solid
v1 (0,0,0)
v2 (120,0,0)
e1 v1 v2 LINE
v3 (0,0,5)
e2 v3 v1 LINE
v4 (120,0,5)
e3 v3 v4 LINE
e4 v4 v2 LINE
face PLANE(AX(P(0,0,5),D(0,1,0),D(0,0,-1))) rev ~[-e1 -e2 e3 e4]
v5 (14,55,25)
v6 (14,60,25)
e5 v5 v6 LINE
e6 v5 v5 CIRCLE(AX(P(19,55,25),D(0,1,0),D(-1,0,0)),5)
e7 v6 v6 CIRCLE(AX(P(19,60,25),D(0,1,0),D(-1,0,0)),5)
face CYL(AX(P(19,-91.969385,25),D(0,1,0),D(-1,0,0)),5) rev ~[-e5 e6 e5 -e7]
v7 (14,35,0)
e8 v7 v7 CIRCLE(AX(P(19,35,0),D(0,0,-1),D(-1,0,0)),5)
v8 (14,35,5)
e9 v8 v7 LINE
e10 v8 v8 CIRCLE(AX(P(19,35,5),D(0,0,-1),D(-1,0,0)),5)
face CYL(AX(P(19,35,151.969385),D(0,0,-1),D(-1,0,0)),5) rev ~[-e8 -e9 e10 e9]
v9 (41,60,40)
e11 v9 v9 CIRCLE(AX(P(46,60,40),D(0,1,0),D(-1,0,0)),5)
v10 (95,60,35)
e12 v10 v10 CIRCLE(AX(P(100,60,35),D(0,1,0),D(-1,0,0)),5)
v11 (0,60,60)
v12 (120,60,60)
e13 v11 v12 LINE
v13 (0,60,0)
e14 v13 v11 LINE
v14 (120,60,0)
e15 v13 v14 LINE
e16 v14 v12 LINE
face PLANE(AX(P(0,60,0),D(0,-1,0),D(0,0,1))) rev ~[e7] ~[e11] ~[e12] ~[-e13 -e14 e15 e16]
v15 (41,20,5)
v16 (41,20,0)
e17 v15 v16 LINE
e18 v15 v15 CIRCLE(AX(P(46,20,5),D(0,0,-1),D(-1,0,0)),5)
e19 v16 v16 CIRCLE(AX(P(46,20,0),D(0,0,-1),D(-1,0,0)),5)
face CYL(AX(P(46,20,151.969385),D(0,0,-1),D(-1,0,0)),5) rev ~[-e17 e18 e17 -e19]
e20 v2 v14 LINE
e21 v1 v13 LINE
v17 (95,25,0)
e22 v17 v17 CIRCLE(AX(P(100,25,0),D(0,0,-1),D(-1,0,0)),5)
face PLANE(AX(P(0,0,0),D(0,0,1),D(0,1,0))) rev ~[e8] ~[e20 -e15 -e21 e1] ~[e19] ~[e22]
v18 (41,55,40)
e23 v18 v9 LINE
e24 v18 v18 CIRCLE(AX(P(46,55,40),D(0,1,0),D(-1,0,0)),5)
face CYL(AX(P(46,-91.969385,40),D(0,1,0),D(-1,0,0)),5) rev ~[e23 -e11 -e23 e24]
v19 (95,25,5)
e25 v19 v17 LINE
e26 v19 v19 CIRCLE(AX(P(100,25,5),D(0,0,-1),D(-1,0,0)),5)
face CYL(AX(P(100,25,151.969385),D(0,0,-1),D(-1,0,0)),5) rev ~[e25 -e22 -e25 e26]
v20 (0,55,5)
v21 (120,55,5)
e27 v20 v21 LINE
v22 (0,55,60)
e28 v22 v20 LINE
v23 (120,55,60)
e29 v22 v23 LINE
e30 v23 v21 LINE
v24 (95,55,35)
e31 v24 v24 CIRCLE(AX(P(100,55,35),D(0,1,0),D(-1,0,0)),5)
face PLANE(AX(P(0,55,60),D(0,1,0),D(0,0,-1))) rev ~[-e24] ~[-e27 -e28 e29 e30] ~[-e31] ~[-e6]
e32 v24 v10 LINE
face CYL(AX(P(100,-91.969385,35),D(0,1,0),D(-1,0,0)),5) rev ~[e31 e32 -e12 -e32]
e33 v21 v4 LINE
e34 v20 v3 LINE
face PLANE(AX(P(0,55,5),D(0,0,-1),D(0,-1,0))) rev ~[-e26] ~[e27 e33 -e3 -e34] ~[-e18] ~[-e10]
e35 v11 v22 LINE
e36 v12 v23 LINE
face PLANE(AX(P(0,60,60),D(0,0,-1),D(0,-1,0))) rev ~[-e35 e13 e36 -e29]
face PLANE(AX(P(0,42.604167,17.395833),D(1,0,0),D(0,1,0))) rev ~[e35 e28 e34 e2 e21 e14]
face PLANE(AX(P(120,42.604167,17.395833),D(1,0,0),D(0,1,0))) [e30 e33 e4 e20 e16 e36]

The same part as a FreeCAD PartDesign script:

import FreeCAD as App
import Part
import Sketcher
Q = App.Units.Quantity


def add_polygon(sketch, points):
    """Adds a closed chain of lines whose ends are joined by coincident constraints."""
    first, n = sketch.GeometryCount, len(points)
    for a, b in zip(points, points[1:] + points[:1]):
        sketch.addGeometry(Part.LineSegment(App.Vector(*a, 0), App.Vector(*b, 0)), False)
    for i in range(n):
        sketch.addConstraint(Sketcher.Constraint("Coincident", first + i, 2, first + (i + 1) % n, 1))

doc = App.newDocument("Part")
params = doc.addObject("Spreadsheet::Sheet", "Params")
for row, (alias, value) in enumerate([
    ("sketch1_width", "60 mm"),
    ("sketch1_width2", "5 mm"),
    ("pad1_length", "120 mm"),
    ("sketch2_diameter", "10 mm"),
    ("hole_diameter", "10 mm"),
    ("sketch3_diameter", "10 mm"),
    ("hole2_diameter", "10 mm"),
    ("sketch4_diameter", "10 mm"),
    ("hole3_diameter", "10 mm"),
    ("sketch5_diameter", "10 mm"),
    ("hole4_diameter", "10 mm"),
], start=1):
    params.set(f"A{row}", alias)
    params.set(f"B{row}", "=" + value)
    params.setAlias(f"B{row}", alias)

body = doc.addObject("PartDesign::Body", "Body")

# Sketch on YZ plane
sketch1 = doc.addObject("Sketcher::SketchObject", "Sketch")
body.addObject(sketch1)
sketch1.AttachmentSupport = (doc.YZ_Plane, [""])
sketch1.MapMode = "FlatFace"
add_polygon(sketch1, [(0, 5), (0, 0), (60, 0), (60, 60), (55, 60), (55, 5)])  # lines 0-5
sketch1.addConstraint(Sketcher.Constraint("Vertical", 0))
sketch1.addConstraint(Sketcher.Constraint("Horizontal", 1))
sketch1.addConstraint(Sketcher.Constraint("Vertical", 2))
sketch1.addConstraint(Sketcher.Constraint("Horizontal", 3))
sketch1.addConstraint(Sketcher.Constraint("Vertical", 4))
sketch1.addConstraint(Sketcher.Constraint("Horizontal", 5))
sketch1.addConstraint(Sketcher.Constraint("Coincident", 0, 2, -1, 1))
sketch1.addConstraint(Sketcher.Constraint("Equal", 3, 0))
sketch1.addConstraint(Sketcher.Constraint("Equal", 1, 2))
sketch1.addConstraint(Sketcher.Constraint("DistanceX", 1, 1, 1, 2, Q("60 mm")))
sketch1.addConstraint(Sketcher.Constraint("DistanceX", 3, 2, 3, 1, Q("5 mm")))
sketch1.setExpression("Constraints[15]", "Params.sketch1_width")
sketch1.setExpression("Constraints[16]", "Params.sketch1_width2")
pad1 = doc.addObject("PartDesign::Pad", "Pad")
body.addObject(pad1)
pad1.Profile = sketch1
pad1.setExpression("Length", "Params.pad1_length")

# Sketch on XY plane
sketch2 = doc.addObject("Sketcher::SketchObject", "Sketch001")
body.addObject(sketch2)
sketch2.AttachmentSupport = (doc.XY_Plane, [""])
sketch2.MapMode = "FlatFace"
sketch2.AttachmentOffset = App.Placement(App.Vector(0, 0, 5), App.Rotation())
sketch2.addGeometry(Part.Circle(App.Vector(46, 20, 0), App.Vector(0, 0, 1), 5), False)
sketch2.addGeometry(Part.Circle(App.Vector(19, 35, 0), App.Vector(0, 0, 1), 5), False)
sketch2.addConstraint(Sketcher.Constraint("Equal", 0, 1))
sketch2.addConstraint(Sketcher.Constraint("Diameter", 0, Q("10 mm")))
sketch2.addConstraint(Sketcher.Constraint("DistanceX", -1, 1, 0, 3, Q("46 mm")))
sketch2.addConstraint(Sketcher.Constraint("DistanceY", -1, 1, 0, 3, Q("20 mm")))
sketch2.addConstraint(Sketcher.Constraint("DistanceX", -1, 1, 1, 3, Q("19 mm")))
sketch2.addConstraint(Sketcher.Constraint("DistanceY", -1, 1, 1, 3, Q("35 mm")))
sketch2.setExpression("Constraints[1]", "Params.sketch2_diameter")
doc.recompute()
hole = doc.addObject("PartDesign::Hole", "Hole")
body.addObject(hole)
hole.Profile = sketch2
hole.ThreadType = "None"
hole.setExpression("Diameter", "Params.hole_diameter")
hole.DepthType = "ThroughAll"

# Sketch on XZ plane
sketch3 = doc.addObject("Sketcher::SketchObject", "Sketch002")
body.addObject(sketch3)
sketch3.AttachmentSupport = (doc.XZ_Plane, [""])
sketch3.MapMode = "FlatFace"
sketch3.AttachmentOffset = App.Placement(App.Vector(0, 0, -55), App.Rotation())
sketch3.addGeometry(Part.Circle(App.Vector(46, 40, 0), App.Vector(0, 0, 1), 5), False)
sketch3.addGeometry(Part.Circle(App.Vector(19, 25, 0), App.Vector(0, 0, 1), 5), False)
sketch3.addConstraint(Sketcher.Constraint("Equal", 0, 1))
sketch3.addConstraint(Sketcher.Constraint("Diameter", 0, Q("10 mm")))
sketch3.addConstraint(Sketcher.Constraint("DistanceX", -1, 1, 0, 3, Q("46 mm")))
sketch3.addConstraint(Sketcher.Constraint("DistanceY", -1, 1, 0, 3, Q("40 mm")))
sketch3.addConstraint(Sketcher.Constraint("DistanceX", -1, 1, 1, 3, Q("19 mm")))
sketch3.addConstraint(Sketcher.Constraint("DistanceY", -1, 1, 1, 3, Q("25 mm")))
sketch3.setExpression("Constraints[1]", "Params.sketch3_diameter")
doc.recompute()
hole2 = doc.addObject("PartDesign::Hole", "Hole001")
body.addObject(hole2)
hole2.Profile = sketch3
hole2.ThreadType = "None"
hole2.setExpression("Diameter", "Params.hole2_diameter")
hole2.DepthType = "ThroughAll"

# Sketch on XZ plane
sketch4 = doc.addObject("Sketcher::SketchObject", "Sketch003")
body.addObject(sketch4)
sketch4.AttachmentSupport = (doc.XZ_Plane, [""])
sketch4.MapMode = "FlatFace"
sketch4.AttachmentOffset = App.Placement(App.Vector(0, 0, -55), App.Rotation())
sketch4.addGeometry(Part.Circle(App.Vector(100, 35, 0), App.Vector(0, 0, 1), 5), False)
sketch4.addConstraint(Sketcher.Constraint("Diameter", 0, Q("10 mm")))
sketch4.addConstraint(Sketcher.Constraint("DistanceX", -1, 1, 0, 3, Q("100 mm")))
sketch4.addConstraint(Sketcher.Constraint("DistanceY", -1, 1, 0, 3, Q("35 mm")))
sketch4.setExpression("Constraints[0]", "Params.sketch4_diameter")
doc.recompute()
hole3 = doc.addObject("PartDesign::Hole", "Hole002")
body.addObject(hole3)
hole3.Profile = sketch4
hole3.ThreadType = "None"
hole3.setExpression("Diameter", "Params.hole3_diameter")
hole3.DepthType = "ThroughAll"

# Sketch on XY plane
sketch5 = doc.addObject("Sketcher::SketchObject", "Sketch004")
body.addObject(sketch5)
sketch5.AttachmentSupport = (doc.XY_Plane, [""])
sketch5.MapMode = "FlatFace"
sketch5.AttachmentOffset = App.Placement(App.Vector(0, 0, 5), App.Rotation())
sketch5.addGeometry(Part.Circle(App.Vector(100, 25, 0), App.Vector(0, 0, 1), 5), False)
sketch5.addConstraint(Sketcher.Constraint("Diameter", 0, Q("10 mm")))
sketch5.addConstraint(Sketcher.Constraint("DistanceX", -1, 1, 0, 3, Q("100 mm")))
sketch5.addConstraint(Sketcher.Constraint("DistanceY", -1, 1, 0, 3, Q("25 mm")))
sketch5.setExpression("Constraints[0]", "Params.sketch5_diameter")
doc.recompute()
hole4 = doc.addObject("PartDesign::Hole", "Hole003")
body.addObject(hole4)
hole4.Profile = sketch5
hole4.ThreadType = "None"
hole4.setExpression("Diameter", "Params.hole4_diameter")
hole4.DepthType = "ThroughAll"

doc.recompute()
